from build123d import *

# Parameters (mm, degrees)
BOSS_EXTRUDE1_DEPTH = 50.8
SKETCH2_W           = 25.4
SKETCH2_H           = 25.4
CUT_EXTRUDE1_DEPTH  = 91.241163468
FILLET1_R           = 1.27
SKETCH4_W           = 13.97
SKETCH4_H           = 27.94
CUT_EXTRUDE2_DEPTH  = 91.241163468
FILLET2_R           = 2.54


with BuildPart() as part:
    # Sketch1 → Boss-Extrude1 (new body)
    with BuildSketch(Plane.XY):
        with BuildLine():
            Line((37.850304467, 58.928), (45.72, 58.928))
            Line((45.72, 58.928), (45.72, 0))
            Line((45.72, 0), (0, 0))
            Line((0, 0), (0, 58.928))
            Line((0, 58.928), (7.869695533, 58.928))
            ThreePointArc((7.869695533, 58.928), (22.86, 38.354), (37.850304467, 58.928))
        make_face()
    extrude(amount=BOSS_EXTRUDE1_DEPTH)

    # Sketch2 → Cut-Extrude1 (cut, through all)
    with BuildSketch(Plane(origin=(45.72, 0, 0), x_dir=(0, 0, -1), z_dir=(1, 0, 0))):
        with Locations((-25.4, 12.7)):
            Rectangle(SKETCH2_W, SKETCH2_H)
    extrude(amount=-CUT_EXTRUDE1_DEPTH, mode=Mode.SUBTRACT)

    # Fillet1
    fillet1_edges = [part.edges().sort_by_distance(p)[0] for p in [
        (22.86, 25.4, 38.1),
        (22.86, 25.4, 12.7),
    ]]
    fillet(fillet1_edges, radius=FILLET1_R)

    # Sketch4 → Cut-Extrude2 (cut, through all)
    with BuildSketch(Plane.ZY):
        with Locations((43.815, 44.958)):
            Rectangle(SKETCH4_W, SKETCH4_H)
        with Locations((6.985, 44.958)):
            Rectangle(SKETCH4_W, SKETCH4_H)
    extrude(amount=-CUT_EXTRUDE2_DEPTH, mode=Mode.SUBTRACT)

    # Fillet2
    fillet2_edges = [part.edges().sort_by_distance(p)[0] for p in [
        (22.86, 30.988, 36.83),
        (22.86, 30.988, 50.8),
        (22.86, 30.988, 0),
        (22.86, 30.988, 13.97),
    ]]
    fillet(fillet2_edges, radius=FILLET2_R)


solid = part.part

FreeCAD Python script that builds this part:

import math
import FreeCAD as App
import Part
import Sketcher
from FreeCAD import Vector
Q = App.Units.Quantity


def edges_at(feature, points):
    """Names of the edges that pass closest to the given points."""
    edges = feature.Shape.Edges
    near = lambda p: min(range(len(edges)), key=lambda i: edges[i].distToShape(Part.Vertex(*p))[0])
    return sorted({f"Edge{near(p) + 1}" for p in points})

doc = App.newDocument("Part")
body = doc.addObject("PartDesign::Body", "Body")

# Sketch on XY plane
sketch1 = doc.addObject("Sketcher::SketchObject", "Sketch")
body.addObject(sketch1)
sketch1.AttachmentSupport = (doc.XY_Plane, [""])
sketch1.MapMode = "FlatFace"
sketch1.addGeometry(Part.LineSegment(Vector(46, 59, 0), Vector(38, 59, 0)), False)
sketch1.addGeometry(Part.ArcOfCircle(Part.Circle(Vector(23, 54, 0), Vector(0, 0, 1), 16), math.radians(162), math.radians(378)), False)
sketch1.addGeometry(Part.LineSegment(Vector(8, 59, 0), Vector(0, 59, 0)), False)
sketch1.addGeometry(Part.LineSegment(Vector(0, 59, 0), Vector(0, 0, 0)), False)
sketch1.addGeometry(Part.LineSegment(Vector(0, 0, 0), Vector(46, 0, 0)), False)
sketch1.addGeometry(Part.LineSegment(Vector(46, 0, 0), Vector(46, 59, 0)), False)
sketch1.addConstraint(Sketcher.Constraint("Coincident", 0, 2, 1, 2))
sketch1.addConstraint(Sketcher.Constraint("Coincident", 1, 1, 2, 1))
sketch1.addConstraint(Sketcher.Constraint("Coincident", 2, 2, 3, 1))
sketch1.addConstraint(Sketcher.Constraint("Coincident", 3, 2, 4, 1))
sketch1.addConstraint(Sketcher.Constraint("Coincident", 4, 2, 5, 1))
sketch1.addConstraint(Sketcher.Constraint("Coincident", 5, 2, 0, 1))
sketch1.addConstraint(Sketcher.Constraint("Horizontal", 0))
sketch1.addConstraint(Sketcher.Constraint("Horizontal", 2))
sketch1.addConstraint(Sketcher.Constraint("Vertical", 3))
sketch1.addConstraint(Sketcher.Constraint("Horizontal", 4))
sketch1.addConstraint(Sketcher.Constraint("Vertical", 5))
sketch1.addConstraint(Sketcher.Constraint("Coincident", 3, 2, -1, 1))
sketch1.addConstraint(Sketcher.Constraint("Horizontal", 0, 2, 1, 1))
sketch1.addConstraint(Sketcher.Constraint("Equal", 0, 2))
sketch1.addConstraint(Sketcher.Constraint("Radius", 1, Q("0.62 in")))
sketch1.addConstraint(Sketcher.Constraint("DistanceX", 4, 1, 4, 2, Q("1.8 in")))
sketch1.addConstraint(Sketcher.Constraint("DistanceY", 3, 2, 3, 1, Q("2.32 in")))
sketch1.addConstraint(Sketcher.Constraint("DistanceY", -1, 1, 1, 3, Q("2.13 in")))
pad1 = doc.addObject("PartDesign::Pad", "Pad")
body.addObject(pad1)
pad1.Profile = sketch1
pad1.Length = Q("2 in")

# Sketch on YZ plane
sketch2 = doc.addObject("Sketcher::SketchObject", "Sketch001")
body.addObject(sketch2)
sketch2.AttachmentSupport = (doc.YZ_Plane, [""])
sketch2.MapMode = "FlatFace"
sketch2.AttachmentOffset = App.Placement(Vector(0, 0, 1.8 * 25.4), App.Rotation())
sketch2.addGeometry(Part.LineSegment(Vector(25, 38, 0), Vector(0, 38, 0)), False)
sketch2.addGeometry(Part.LineSegment(Vector(0, 38, 0), Vector(0, 13, 0)), False)
sketch2.addGeometry(Part.LineSegment(Vector(0, 13, 0), Vector(25, 13, 0)), False)
sketch2.addGeometry(Part.LineSegment(Vector(25, 13, 0), Vector(25, 38, 0)), False)
sketch2.addConstraint(Sketcher.Constraint("Coincident", 0, 2, 1, 1))
sketch2.addConstraint(Sketcher.Constraint("Coincident", 1, 2, 2, 1))
sketch2.addConstraint(Sketcher.Constraint("Coincident", 2, 2, 3, 1))
sketch2.addConstraint(Sketcher.Constraint("Coincident", 3, 2, 0, 1))
sketch2.addConstraint(Sketcher.Constraint("Horizontal", 0))
sketch2.addConstraint(Sketcher.Constraint("Vertical", 1))
sketch2.addConstraint(Sketcher.Constraint("Horizontal", 2))
sketch2.addConstraint(Sketcher.Constraint("Vertical", 3))
sketch2.addConstraint(Sketcher.Constraint("PointOnObject", 0, 2, -2))
sketch2.addConstraint(Sketcher.Constraint("Equal", 2, 1))
sketch2.addConstraint(Sketcher.Constraint("DistanceX", 0, 2, 0, 1, Q("1 in")))
sketch2.addConstraint(Sketcher.Constraint("DistanceY", -1, 1, 0, 2, Q("1.5 in")))
pocket1 = doc.addObject("PartDesign::Pocket", "Pocket")
body.addObject(pocket1)
pocket1.Profile = sketch2
pocket1.Type = "ThroughAll"
doc.recompute()

fillet = doc.addObject("PartDesign::Fillet", "Fillet")
body.addObject(fillet)
fillet.Base = (pocket1, edges_at(pocket1, [(22.86, 25.4, 38.1), (22.86, 25.4, 12.7)]))
fillet.Radius = Q("0.05 in")

# Sketch on YZ plane
sketch3 = doc.addObject("Sketcher::SketchObject", "Sketch002")
body.addObject(sketch3)
sketch3.AttachmentSupport = (doc.YZ_Plane, [""])
sketch3.MapMode = "FlatFace"
sketch3.addGeometry(Part.LineSegment(Vector(59, 37, 0), Vector(31, 37, 0)), False)
sketch3.addGeometry(Part.LineSegment(Vector(31, 37, 0), Vector(31, 51, 0)), False)
sketch3.addGeometry(Part.LineSegment(Vector(31, 51, 0), Vector(59, 51, 0)), False)
sketch3.addGeometry(Part.LineSegment(Vector(59, 51, 0), Vector(59, 37, 0)), False)
sketch3.addGeometry(Part.LineSegment(Vector(59, 0, 0), Vector(31, 0, 0)), False)
sketch3.addGeometry(Part.LineSegment(Vector(31, 0, 0), Vector(31, 14, 0)), False)
sketch3.addGeometry(Part.LineSegment(Vector(31, 14, 0), Vector(59, 14, 0)), False)
sketch3.addGeometry(Part.LineSegment(Vector(59, 14, 0), Vector(59, 0, 0)), False)
sketch3.addConstraint(Sketcher.Constraint("Coincident", 0, 2, 1, 1))
sketch3.addConstraint(Sketcher.Constraint("Coincident", 1, 2, 2, 1))
sketch3.addConstraint(Sketcher.Constraint("Coincident", 2, 2, 3, 1))
sketch3.addConstraint(Sketcher.Constraint("Coincident", 3, 2, 0, 1))
sketch3.addConstraint(Sketcher.Constraint("Coincident", 4, 2, 5, 1))
sketch3.addConstraint(Sketcher.Constraint("Coincident", 5, 2, 6, 1))
sketch3.addConstraint(Sketcher.Constraint("Coincident", 6, 2, 7, 1))
sketch3.addConstraint(Sketcher.Constraint("Coincident", 7, 2, 4, 1))
sketch3.addConstraint(Sketcher.Constraint("Horizontal", 0))
sketch3.addConstraint(Sketcher.Constraint("Vertical", 1))
sketch3.addConstraint(Sketcher.Constraint("Horizontal", 2))
sketch3.addConstraint(Sketcher.Constraint("Vertical", 3))
sketch3.addConstraint(Sketcher.Constraint("Horizontal", 4))
sketch3.addConstraint(Sketcher.Constraint("Vertical", 5))
sketch3.addConstraint(Sketcher.Constraint("Horizontal", 6))
sketch3.addConstraint(Sketcher.Constraint("Vertical", 7))
sketch3.addConstraint(Sketcher.Constraint("PointOnObject", 4, 2, -1))
sketch3.addConstraint(Sketcher.Constraint("Vertical", 1, 2, 4, 2))
sketch3.addConstraint(Sketcher.Constraint("Vertical", 3, 2, 6, 2))
sketch3.addConstraint(Sketcher.Constraint("Equal", 3, 5))
sketch3.addConstraint(Sketcher.Constraint("DistanceX", 0, 2, 0, 1, Q("1.1 in")))
sketch3.addConstraint(Sketcher.Constraint("DistanceY", -1, 1, 1, 2, Q("2 in")))
sketch3.addConstraint(Sketcher.Constraint("DistanceY", 1, 1, 1, 2, Q("0.55 in")))
sketch3.addConstraint(Sketcher.Constraint("DistanceX", -1, 1, 0, 2, Q("1.22 in")))
pocket2 = doc.addObject("PartDesign::Pocket", "Pocket001")
body.addObject(pocket2)
pocket2.Profile = sketch3
pocket2.Type = "ThroughAll"
pocket2.Reversed = True
doc.recompute()

fillet2 = doc.addObject("PartDesign::Fillet", "Fillet001")
body.addObject(fillet2)
fillet2.Base = (pocket2, edges_at(pocket2, [
    (22.86, 30.988, 36.83),
    (22.86, 30.988, 50.8),
    (22.86, 30.988, 0),
    (22.86, 30.988, 13.97),
]))
fillet2.Radius = Q("0.1 in")

doc.recompute()
